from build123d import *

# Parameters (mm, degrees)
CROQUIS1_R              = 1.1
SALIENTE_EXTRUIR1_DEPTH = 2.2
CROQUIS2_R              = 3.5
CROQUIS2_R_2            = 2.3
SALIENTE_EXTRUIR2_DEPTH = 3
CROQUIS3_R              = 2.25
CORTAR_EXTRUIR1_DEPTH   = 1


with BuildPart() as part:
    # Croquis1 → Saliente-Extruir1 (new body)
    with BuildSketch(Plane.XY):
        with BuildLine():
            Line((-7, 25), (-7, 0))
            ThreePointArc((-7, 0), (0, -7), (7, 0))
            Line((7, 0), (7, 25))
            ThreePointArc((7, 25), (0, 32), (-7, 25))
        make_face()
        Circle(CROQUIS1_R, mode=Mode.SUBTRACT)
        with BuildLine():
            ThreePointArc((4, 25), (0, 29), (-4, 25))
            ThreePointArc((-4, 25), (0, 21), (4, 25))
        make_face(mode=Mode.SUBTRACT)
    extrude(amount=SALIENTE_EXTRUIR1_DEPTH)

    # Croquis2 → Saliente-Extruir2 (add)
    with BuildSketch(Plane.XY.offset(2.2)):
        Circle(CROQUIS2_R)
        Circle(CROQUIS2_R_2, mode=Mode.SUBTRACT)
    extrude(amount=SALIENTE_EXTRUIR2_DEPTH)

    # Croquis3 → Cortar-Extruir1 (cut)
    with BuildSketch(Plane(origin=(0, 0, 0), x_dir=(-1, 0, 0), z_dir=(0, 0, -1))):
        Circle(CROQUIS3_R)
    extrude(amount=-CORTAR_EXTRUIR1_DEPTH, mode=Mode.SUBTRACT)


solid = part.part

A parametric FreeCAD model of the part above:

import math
import FreeCAD as App
import Part
import Sketcher

V = App.Vector

doc = App.newDocument("Part")
params = doc.addObject("Spreadsheet::Sheet", "Params")
for row, (alias, value) in enumerate([
    ("sketch1_diameter", "8 mm"),
    ("sketch1_radius", "7 mm"),
    ("sketch1_diameter2", "2.2 mm"),
    ("sketch1_height", "25 mm"),
    ("pad1_length", "2.2 mm"),
    ("sketch2_diameter", "7 mm"),
    ("sketch2_diameter2", "4.6 mm"),
    ("pad2_length", "3 mm"),
    ("sketch3_diameter", "4.5 mm"),
    ("pocket1_length", "1 mm"),
], start=1):
    params.set(f"A{row}", alias)
    params.set(f"B{row}", "=" + value)
    params.setAlias(f"B{row}", alias)

body = doc.addObject("PartDesign::Body", "Body")

# Sketch on XY plane
sketch1 = body.newObject("Sketcher::SketchObject", "Sketch")
sketch1.AttachmentSupport = (doc.getObject("XY_Plane"), [""])
sketch1.MapMode = "FlatFace"
sketch1.addGeometry(Part.LineSegment(V(-7, 25, 0), V(-7, 0, 0)), False)
sketch1.addGeometry(Part.ArcOfCircle(Part.Circle(V(0, 0, 0), V(0, 0, 1), 7), math.radians(180), math.radians(360)), False)
sketch1.addGeometry(Part.LineSegment(V(7, 0, 0), V(7, 25, 0)), False)
sketch1.addGeometry(Part.ArcOfCircle(Part.Circle(V(0, 25, 0), V(0, 0, 1), 7), math.radians(0), math.radians(180)), False)
sketch1.addGeometry(Part.Circle(V(0, 0, 0), V(0, 0, 1), 1.1), False)
sketch1.addGeometry(Part.Circle(V(0, 25, 0), V(0, 0, 1), 4), False)
sketch1.addConstraint(Sketcher.Constraint("Tangent", 0, 2, 1, 1))
sketch1.addConstraint(Sketcher.Constraint("Tangent", 1, 2, 2, 1))
sketch1.addConstraint(Sketcher.Constraint("Tangent", 2, 2, 3, 1))
sketch1.addConstraint(Sketcher.Constraint("Tangent", 3, 2, 0, 1))
sketch1.addConstraint(Sketcher.Constraint("Vertical", 0))
sketch1.addConstraint(Sketcher.Constraint("Vertical", 2))
sketch1.addConstraint(Sketcher.Constraint("Coincident", 1, 3, -1, 1))
sketch1.addConstraint(Sketcher.Constraint("Coincident", 4, 3, -1, 1))
sketch1.addConstraint(Sketcher.Constraint("Coincident", 5, 3, 3, 3))
sketch1.addConstraint(Sketcher.Constraint("Diameter", 5, 8.0))
sketch1.addConstraint(Sketcher.Constraint("Radius", 1, 7.0))
sketch1.addConstraint(Sketcher.Constraint("Diameter", 4, 2.2))
sketch1.addConstraint(Sketcher.Constraint("DistanceY", 0, 2, 0, 1, 25.0))
sketch1.setExpression("Constraints[9]", "Params.sketch1_diameter")
sketch1.setExpression("Constraints[10]", "Params.sketch1_radius")
sketch1.setExpression("Constraints[11]", "Params.sketch1_diameter2")
sketch1.setExpression("Constraints[12]", "Params.sketch1_height")
pad1 = body.newObject("PartDesign::Pad", "Pad")
pad1.Profile = sketch1
pad1.setExpression("Length", "Params.pad1_length")

# Sketch on XY plane
sketch2 = body.newObject("Sketcher::SketchObject", "Sketch001")
sketch2.AttachmentSupport = (doc.getObject("XY_Plane"), [""])
sketch2.MapMode = "FlatFace"
sketch2.AttachmentOffset = App.Placement(V(0, 0, 2.2), App.Rotation())
sketch2.addGeometry(Part.Circle(V(0, 0, 0), V(0, 0, 1), 3.5), False)
sketch2.addGeometry(Part.Circle(V(0, 0, 0), V(0, 0, 1), 2.3), False)
sketch2.addConstraint(Sketcher.Constraint("Coincident", 0, 3, -1, 1))
sketch2.addConstraint(Sketcher.Constraint("Coincident", 1, 3, -1, 1))
sketch2.addConstraint(Sketcher.Constraint("Diameter", 0, 7.0))
sketch2.addConstraint(Sketcher.Constraint("Diameter", 1, 4.6))
sketch2.setExpression("Constraints[2]", "Params.sketch2_diameter")
sketch2.setExpression("Constraints[3]", "Params.sketch2_diameter2")
pad2 = body.newObject("PartDesign::Pad", "Pad001")
pad2.Profile = sketch2
pad2.setExpression("Length", "Params.pad2_length")

# Sketch on XY plane
sketch3 = body.newObject("Sketcher::SketchObject", "Sketch002")
sketch3.AttachmentSupport = (doc.getObject("XY_Plane"), [""])
sketch3.MapMode = "FlatFace"
sketch3.addGeometry(Part.Circle(V(0, 0, 0), V(0, 0, 1), 2.2), False)
sketch3.addConstraint(Sketcher.Constraint("Coincident", 0, 3, -1, 1))
sketch3.addConstraint(Sketcher.Constraint("Diameter", 0, 4.5))
sketch3.setExpression("Constraints[1]", "Params.sketch3_diameter")
pocket1 = body.newObject("PartDesign::Pocket", "Pocket")
pocket1.Profile = sketch3
pocket1.setExpression("Length", "Params.pocket1_length")
pocket1.Reversed = True

doc.recompute()
